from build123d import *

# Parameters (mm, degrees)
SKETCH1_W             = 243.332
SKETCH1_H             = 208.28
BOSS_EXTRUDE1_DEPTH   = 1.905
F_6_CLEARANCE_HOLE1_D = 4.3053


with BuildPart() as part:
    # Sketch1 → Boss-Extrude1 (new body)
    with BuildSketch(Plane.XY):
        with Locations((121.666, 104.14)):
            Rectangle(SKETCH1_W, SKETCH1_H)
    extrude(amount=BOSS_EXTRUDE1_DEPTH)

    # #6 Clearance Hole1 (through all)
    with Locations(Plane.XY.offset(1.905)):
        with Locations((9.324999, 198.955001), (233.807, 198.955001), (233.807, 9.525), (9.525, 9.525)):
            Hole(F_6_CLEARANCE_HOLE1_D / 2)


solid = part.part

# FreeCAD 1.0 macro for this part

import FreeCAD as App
import Part
import Sketcher
from FreeCAD import Vector
Q = App.Units.Quantity


def add_polygon(sketch, points):
    """Adds a closed chain of lines whose ends are joined by coincident constraints."""
    first, n = sketch.GeometryCount, len(points)
    for a, b in zip(points, points[1:] + points[:1]):
        sketch.addGeometry(Part.LineSegment(App.Vector(*a, 0), App.Vector(*b, 0)), False)
    for i in range(n):
        sketch.addConstraint(Sketcher.Constraint("Coincident", first + i, 2, first + (i + 1) % n, 1))

doc = App.newDocument("Part")
params = doc.addObject("Spreadsheet::Sheet", "Params")
for row, (alias, value) in enumerate([
    ("sketch1_height", "8.2 in"),
    ("sketch1_width", "9.58 in"),
    ("pad1_length", "0.075 in"),
    ("hole_diameter", "0.1695 in"),
], start=1):
    params.set(f"A{row}", alias)
    params.set(f"B{row}", "=" + value)
    params.setAlias(f"B{row}", alias)

body = doc.addObject("PartDesign::Body", "Body")

# Sketch on XY plane
sketch1 = body.newObject("Sketcher::SketchObject", "Sketch")
sketch1.AttachmentSupport = (doc.getObject("XY_Plane"), [""])
sketch1.MapMode = "FlatFace"
add_polygon(sketch1, [(0, 208), (0, 0), (243, 0), (243, 208)])  # lines 0-3
sketch1.addConstraint(Sketcher.Constraint("Vertical", 0))
sketch1.addConstraint(Sketcher.Constraint("Horizontal", 1))
sketch1.addConstraint(Sketcher.Constraint("Vertical", 2))
sketch1.addConstraint(Sketcher.Constraint("Horizontal", 3))
sketch1.addConstraint(Sketcher.Constraint("Coincident", 0, 2, -1, 1))
sketch1.addConstraint(Sketcher.Constraint("DistanceY", 0, 2, 0, 1, Q("8.2 in")))
sketch1.addConstraint(Sketcher.Constraint("DistanceX", 1, 1, 1, 2, Q("9.58 in")))
sketch1.setExpression("Constraints[9]", "Params.sketch1_height")
sketch1.setExpression("Constraints[10]", "Params.sketch1_width")
pad1 = body.newObject("PartDesign::Pad", "Pad")
pad1.Profile = sketch1
pad1.setExpression("Length", "Params.pad1_length")

# Sketch on XY plane
sketch2 = body.newObject("Sketcher::SketchObject", "Sketch001")
sketch2.AttachmentSupport = (doc.getObject("XY_Plane"), [""])
sketch2.MapMode = "FlatFace"
sketch2.AttachmentOffset = App.Placement(Vector(0, 0, 0.075 * 25.4), App.Rotation())
sketch2.addGeometry(Part.Circle(Vector(9.3, 199, 0), Vector(0, 0, 1), 2.2), False)
sketch2.addGeometry(Part.Circle(Vector(233.8, 199, 0), Vector(0, 0, 1), 2.2), False)
sketch2.addGeometry(Part.Circle(Vector(233.8, 9.5, 0), Vector(0, 0, 1), 2.2), False)
sketch2.addGeometry(Part.Circle(Vector(9.5, 9.5, 0), Vector(0, 0, 1), 2.2), False)
sketch2.addConstraint(Sketcher.Constraint("Equal", 0, 1))
sketch2.addConstraint(Sketcher.Constraint("Equal", 1, 2))
sketch2.addConstraint(Sketcher.Constraint("Equal", 2, 3))
sketch2.addConstraint(Sketcher.Constraint("Horizontal", 0, 3, 1, 3))
sketch2.addConstraint(Sketcher.Constraint("Horizontal", 2, 3, 3, 3))
sketch2.addConstraint(Sketcher.Constraint("Vertical", 1, 3, 2, 3))
sketch2.addConstraint(Sketcher.Constraint("Diameter", 0, Q("0.1695 in")))
sketch2.addConstraint(Sketcher.Constraint("DistanceX", 3, 3, 2, 3, Q("8.83 in")))
sketch2.addConstraint(Sketcher.Constraint("DistanceX", -1, 1, 1, 3, Q("9.205 in")))
sketch2.addConstraint(Sketcher.Constraint("DistanceY", -1, 1, 2, 3, Q("0.375 in")))
sketch2.addConstraint(Sketcher.Constraint("DistanceX", -1, 1, 0, 3, 9.324999))
sketch2.addConstraint(Sketcher.Constraint("DistanceY", -1, 1, 0, 3, 198.955001))
doc.recompute()
hole = body.newObject("PartDesign::Hole", "Hole")
hole.Profile = sketch2
hole.ThreadType = "None"
hole.setExpression("Diameter", "Params.hole_diameter")
hole.DepthType = "ThroughAll"

doc.recompute()
